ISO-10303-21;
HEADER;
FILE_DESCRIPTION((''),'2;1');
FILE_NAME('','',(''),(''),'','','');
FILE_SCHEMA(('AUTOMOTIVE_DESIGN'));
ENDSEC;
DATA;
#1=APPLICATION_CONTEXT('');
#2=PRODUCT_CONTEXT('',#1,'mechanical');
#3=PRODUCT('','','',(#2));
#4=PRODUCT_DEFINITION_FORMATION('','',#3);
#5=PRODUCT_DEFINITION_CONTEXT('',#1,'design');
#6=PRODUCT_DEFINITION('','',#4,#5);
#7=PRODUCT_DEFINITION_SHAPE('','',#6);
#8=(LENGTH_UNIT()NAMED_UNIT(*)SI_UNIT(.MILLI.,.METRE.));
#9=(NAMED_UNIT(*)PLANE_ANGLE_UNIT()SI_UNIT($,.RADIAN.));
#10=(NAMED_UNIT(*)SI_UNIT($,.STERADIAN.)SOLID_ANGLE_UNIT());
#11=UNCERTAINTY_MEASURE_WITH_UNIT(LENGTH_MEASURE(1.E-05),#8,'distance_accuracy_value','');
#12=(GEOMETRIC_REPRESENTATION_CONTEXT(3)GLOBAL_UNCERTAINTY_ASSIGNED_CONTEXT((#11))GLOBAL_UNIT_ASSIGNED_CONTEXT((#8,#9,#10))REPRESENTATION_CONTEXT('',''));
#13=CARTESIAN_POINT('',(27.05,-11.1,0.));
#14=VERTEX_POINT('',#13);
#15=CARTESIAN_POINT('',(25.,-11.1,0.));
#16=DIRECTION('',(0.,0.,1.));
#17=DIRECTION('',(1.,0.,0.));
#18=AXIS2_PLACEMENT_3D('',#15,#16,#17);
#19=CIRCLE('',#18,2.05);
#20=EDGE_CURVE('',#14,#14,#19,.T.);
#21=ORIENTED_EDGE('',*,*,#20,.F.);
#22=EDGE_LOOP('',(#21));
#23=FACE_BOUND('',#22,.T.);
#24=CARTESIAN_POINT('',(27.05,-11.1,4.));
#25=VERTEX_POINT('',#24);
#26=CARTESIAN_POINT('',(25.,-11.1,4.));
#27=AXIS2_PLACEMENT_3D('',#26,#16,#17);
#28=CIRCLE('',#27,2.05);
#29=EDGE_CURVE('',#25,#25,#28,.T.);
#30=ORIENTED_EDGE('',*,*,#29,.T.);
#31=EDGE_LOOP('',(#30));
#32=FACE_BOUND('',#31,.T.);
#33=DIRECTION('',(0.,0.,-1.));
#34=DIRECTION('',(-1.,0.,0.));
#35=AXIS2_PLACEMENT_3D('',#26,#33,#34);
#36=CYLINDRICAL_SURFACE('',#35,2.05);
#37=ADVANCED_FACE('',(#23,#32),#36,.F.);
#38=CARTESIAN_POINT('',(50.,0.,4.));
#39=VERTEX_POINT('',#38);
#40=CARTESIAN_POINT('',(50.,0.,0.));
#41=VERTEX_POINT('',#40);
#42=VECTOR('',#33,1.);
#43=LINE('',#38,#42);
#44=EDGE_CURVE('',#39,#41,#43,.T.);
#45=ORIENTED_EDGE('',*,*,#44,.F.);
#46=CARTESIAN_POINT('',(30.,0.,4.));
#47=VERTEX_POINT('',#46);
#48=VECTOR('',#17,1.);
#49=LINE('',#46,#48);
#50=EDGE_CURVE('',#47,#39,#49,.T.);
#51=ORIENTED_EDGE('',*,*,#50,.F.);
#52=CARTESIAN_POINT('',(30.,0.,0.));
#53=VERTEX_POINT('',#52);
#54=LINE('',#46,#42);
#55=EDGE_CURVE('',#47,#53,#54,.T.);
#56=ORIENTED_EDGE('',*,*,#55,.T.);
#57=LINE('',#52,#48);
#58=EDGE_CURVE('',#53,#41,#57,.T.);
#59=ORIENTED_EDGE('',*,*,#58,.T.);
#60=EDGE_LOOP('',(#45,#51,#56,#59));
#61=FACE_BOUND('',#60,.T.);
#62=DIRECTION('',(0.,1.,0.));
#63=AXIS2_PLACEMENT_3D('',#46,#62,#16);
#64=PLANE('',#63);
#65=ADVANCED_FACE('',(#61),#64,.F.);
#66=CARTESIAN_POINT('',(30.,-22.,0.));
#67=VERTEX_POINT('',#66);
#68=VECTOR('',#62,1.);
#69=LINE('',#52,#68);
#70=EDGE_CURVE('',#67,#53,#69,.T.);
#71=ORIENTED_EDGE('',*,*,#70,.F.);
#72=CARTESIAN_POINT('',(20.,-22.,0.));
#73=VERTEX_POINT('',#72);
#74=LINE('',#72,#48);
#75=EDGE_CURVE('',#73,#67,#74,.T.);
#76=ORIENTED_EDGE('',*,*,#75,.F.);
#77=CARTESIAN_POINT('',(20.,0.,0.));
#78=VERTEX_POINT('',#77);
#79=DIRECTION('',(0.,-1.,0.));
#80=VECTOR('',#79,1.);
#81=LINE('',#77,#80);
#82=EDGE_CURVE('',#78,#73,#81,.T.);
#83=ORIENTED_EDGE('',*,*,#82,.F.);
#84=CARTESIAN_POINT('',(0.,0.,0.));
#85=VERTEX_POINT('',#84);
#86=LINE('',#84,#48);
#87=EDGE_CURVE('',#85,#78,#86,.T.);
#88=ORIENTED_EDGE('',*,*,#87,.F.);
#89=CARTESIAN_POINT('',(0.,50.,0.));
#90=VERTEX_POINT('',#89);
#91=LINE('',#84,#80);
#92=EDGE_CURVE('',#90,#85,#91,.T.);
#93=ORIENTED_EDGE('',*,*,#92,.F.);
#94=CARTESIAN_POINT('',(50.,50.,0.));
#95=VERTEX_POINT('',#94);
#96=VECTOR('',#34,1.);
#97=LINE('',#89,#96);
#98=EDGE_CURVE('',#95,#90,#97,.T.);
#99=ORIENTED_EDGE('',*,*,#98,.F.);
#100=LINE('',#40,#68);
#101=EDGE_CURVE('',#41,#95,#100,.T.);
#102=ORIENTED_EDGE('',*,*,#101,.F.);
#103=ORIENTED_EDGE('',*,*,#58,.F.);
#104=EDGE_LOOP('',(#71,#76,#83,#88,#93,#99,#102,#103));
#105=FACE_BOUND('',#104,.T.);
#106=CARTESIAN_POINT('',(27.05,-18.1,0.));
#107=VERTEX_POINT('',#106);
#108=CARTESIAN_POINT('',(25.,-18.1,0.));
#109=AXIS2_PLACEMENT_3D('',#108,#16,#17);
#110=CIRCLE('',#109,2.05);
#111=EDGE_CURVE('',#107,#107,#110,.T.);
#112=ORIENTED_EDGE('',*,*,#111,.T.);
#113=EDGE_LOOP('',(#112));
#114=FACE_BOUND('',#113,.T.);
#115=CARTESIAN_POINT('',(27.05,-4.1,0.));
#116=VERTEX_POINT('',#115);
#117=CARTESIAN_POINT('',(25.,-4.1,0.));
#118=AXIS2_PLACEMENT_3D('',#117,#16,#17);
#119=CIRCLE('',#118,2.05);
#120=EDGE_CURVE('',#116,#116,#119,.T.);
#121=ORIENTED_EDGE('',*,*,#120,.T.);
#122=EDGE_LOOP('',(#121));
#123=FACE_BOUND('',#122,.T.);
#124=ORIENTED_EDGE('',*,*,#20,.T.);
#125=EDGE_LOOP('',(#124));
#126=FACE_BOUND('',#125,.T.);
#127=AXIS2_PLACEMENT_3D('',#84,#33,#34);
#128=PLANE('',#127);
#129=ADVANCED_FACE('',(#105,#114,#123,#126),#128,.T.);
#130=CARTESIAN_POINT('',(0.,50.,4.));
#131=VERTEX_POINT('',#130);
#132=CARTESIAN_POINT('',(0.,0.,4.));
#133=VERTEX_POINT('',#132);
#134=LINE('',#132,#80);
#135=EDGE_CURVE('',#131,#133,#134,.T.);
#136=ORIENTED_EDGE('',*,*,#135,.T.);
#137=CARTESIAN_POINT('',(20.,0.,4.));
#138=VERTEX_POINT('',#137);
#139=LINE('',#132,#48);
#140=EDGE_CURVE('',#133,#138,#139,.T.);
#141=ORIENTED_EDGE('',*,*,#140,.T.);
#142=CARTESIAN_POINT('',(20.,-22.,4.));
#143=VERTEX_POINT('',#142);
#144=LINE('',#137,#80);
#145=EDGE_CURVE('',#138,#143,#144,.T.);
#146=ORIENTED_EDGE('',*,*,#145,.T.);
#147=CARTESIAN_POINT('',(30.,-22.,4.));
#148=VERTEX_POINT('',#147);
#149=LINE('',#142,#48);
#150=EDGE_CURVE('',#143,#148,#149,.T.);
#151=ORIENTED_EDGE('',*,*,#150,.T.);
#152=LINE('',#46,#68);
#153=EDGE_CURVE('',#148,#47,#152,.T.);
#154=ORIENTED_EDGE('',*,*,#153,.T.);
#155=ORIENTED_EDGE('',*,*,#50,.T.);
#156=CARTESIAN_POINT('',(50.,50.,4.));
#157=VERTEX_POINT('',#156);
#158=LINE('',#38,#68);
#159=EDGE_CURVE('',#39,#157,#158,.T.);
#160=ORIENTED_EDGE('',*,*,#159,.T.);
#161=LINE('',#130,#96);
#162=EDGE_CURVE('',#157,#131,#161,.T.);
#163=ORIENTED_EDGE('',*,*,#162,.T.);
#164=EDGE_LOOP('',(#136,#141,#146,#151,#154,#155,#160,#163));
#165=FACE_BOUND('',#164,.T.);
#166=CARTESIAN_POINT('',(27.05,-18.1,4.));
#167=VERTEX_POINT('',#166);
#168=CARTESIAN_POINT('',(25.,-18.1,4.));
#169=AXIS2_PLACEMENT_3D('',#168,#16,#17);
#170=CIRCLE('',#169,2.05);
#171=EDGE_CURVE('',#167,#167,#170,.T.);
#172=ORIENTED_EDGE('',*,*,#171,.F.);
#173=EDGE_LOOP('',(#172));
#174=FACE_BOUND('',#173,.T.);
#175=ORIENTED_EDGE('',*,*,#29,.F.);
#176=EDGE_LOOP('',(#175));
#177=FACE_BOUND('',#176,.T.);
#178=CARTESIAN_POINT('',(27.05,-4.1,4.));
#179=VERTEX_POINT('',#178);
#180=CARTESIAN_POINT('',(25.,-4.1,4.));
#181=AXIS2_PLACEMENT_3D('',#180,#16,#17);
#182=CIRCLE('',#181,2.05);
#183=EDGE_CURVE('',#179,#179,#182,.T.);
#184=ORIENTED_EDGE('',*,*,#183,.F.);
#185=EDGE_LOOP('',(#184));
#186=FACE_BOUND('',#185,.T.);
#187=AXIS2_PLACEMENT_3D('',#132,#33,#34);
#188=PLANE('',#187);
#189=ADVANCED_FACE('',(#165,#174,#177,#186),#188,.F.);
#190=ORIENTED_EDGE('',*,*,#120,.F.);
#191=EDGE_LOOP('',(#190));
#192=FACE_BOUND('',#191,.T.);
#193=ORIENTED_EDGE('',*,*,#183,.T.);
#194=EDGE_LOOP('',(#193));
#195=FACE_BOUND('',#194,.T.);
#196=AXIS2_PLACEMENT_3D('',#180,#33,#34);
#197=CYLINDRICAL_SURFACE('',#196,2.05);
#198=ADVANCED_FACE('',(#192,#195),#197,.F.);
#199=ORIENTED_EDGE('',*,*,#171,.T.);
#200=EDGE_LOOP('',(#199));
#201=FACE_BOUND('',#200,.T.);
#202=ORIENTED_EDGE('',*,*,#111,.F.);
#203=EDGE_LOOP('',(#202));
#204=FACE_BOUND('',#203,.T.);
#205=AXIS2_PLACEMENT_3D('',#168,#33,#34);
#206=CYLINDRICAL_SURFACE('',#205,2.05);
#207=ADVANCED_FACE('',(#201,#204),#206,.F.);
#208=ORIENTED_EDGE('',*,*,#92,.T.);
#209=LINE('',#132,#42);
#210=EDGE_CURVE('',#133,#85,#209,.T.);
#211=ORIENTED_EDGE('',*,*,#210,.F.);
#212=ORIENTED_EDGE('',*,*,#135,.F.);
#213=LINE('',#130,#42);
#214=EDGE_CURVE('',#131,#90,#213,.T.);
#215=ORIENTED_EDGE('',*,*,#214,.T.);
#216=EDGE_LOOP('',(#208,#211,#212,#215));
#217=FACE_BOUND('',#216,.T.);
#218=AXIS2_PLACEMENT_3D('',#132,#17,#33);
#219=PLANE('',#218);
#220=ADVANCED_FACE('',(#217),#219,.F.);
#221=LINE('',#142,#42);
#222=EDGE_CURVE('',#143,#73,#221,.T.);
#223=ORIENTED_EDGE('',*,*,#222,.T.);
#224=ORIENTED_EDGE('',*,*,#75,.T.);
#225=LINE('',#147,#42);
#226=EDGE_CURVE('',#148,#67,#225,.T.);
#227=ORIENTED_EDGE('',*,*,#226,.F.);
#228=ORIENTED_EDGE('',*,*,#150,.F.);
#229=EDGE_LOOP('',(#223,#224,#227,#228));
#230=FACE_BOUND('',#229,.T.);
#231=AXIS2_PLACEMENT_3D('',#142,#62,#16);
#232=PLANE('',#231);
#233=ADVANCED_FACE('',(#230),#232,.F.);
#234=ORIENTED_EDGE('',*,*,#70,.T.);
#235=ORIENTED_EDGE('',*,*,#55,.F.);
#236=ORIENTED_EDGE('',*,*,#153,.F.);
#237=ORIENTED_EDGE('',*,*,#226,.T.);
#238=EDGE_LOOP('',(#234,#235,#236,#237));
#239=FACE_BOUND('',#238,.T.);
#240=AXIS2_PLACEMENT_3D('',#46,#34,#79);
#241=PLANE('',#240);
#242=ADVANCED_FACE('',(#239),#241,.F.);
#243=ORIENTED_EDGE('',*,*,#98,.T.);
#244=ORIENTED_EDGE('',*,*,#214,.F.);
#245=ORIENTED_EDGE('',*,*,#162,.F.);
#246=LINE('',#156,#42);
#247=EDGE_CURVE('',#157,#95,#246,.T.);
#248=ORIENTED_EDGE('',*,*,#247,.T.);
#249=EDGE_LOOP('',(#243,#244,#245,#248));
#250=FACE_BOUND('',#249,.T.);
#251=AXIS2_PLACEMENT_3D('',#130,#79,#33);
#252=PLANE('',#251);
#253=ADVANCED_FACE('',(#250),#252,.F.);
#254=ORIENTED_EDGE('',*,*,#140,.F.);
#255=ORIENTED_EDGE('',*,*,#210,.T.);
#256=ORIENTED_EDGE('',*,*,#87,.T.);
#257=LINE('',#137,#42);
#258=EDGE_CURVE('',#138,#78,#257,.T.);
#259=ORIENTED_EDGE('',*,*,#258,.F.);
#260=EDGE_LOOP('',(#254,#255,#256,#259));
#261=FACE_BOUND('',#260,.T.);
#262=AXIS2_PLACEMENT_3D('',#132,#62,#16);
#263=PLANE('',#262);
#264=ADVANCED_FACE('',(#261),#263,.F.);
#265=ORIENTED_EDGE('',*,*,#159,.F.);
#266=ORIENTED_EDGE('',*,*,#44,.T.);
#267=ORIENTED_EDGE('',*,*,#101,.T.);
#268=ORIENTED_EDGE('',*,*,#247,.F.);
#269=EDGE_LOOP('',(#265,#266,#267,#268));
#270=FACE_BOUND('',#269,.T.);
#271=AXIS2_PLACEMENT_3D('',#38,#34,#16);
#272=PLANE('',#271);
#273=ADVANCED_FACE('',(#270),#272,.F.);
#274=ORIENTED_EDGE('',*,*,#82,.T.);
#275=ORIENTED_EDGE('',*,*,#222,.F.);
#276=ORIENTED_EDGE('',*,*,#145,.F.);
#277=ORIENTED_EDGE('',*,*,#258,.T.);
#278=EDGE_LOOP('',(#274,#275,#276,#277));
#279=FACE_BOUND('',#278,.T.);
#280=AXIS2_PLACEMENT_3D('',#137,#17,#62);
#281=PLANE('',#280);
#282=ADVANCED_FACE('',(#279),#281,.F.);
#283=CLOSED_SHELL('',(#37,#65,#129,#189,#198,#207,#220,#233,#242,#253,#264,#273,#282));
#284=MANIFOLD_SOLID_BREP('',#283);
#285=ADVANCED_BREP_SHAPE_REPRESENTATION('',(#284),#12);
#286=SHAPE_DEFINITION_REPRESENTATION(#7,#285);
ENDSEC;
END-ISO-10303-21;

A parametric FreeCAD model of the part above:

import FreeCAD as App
import Part
import Sketcher
from FreeCAD import Vector

doc = App.newDocument("Part")
body = doc.addObject("PartDesign::Body", "Body")

# Sketch on XY plane
sketch1 = doc.addObject("Sketcher::SketchObject", "Sketch")
body.addObject(sketch1)
sketch1.AttachmentSupport = (doc.XY_Plane, [""])
sketch1.MapMode = "FlatFace"
sketch1.addGeometry([
    Part.LineSegment(Vector(0, 0, 0), Vector(20, 0, 0)),  # 0
    Part.LineSegment(Vector(20, 0, 0), Vector(20, -22, 0)),  # 1
    Part.LineSegment(Vector(20, -22, 0), Vector(30, -22, 0)),  # 2
    Part.LineSegment(Vector(30, -22, 0), Vector(30, 0, 0)),  # 3
    Part.LineSegment(Vector(30, 0, 0), Vector(50, 0, 0)),  # 4
    Part.LineSegment(Vector(50, 0, 0), Vector(50, 50, 0)),  # 5
    Part.LineSegment(Vector(50, 50, 0), Vector(0, 50, 0)),  # 6
    Part.LineSegment(Vector(0, 50, 0), Vector(0, 0, 0)),  # 7
    Part.Circle(Vector(25, -18.1, 0), Vector(0, 0, 1), 2),  # 8
    Part.Circle(Vector(25, -11.1, 0), Vector(0, 0, 1), 2),  # 9
    Part.Circle(Vector(25, -4.1, 0), Vector(0, 0, 1), 2),  # 10
], False)
sketch1.addConstraint([
    Sketcher.Constraint("Coincident", 0, 2, 1, 1),
    Sketcher.Constraint("Coincident", 1, 2, 2, 1),
    Sketcher.Constraint("Coincident", 2, 2, 3, 1),
    Sketcher.Constraint("Coincident", 3, 2, 4, 1),
    Sketcher.Constraint("Coincident", 4, 2, 5, 1),
    Sketcher.Constraint("Coincident", 5, 2, 6, 1),
    Sketcher.Constraint("Coincident", 6, 2, 7, 1),
    Sketcher.Constraint("Coincident", 7, 2, 0, 1),
    Sketcher.Constraint("Horizontal", 0),
    Sketcher.Constraint("Vertical", 1),
    Sketcher.Constraint("Horizontal", 2),
    Sketcher.Constraint("Vertical", 3),
    Sketcher.Constraint("Horizontal", 4),
    Sketcher.Constraint("Vertical", 5),
    Sketcher.Constraint("Horizontal", 6),
    Sketcher.Constraint("Vertical", 7),
    Sketcher.Constraint("Coincident", 7, 2, -1, 1),
    Sketcher.Constraint("Equal", 8, 9),
    Sketcher.Constraint("Equal", 9, 10),
    Sketcher.Constraint("PointOnObject", 3, 2, -1),
    Sketcher.Constraint("Vertical", 8, 3, 9, 3),
    Sketcher.Constraint("Vertical", 9, 3, 10, 3),
    Sketcher.Constraint("Equal", 0, 4),
    Sketcher.Constraint("Equal", 6, 5),
    Sketcher.Constraint("Diameter", 8, 4.1),
    Sketcher.Constraint("DistanceX", 0, 1, 0, 2, 20.0),
    Sketcher.Constraint("DistanceX", 2, 1, 2, 2, 10.0),
    Sketcher.Constraint("DistanceY", 1, 2, 1, 1, 22.0),
    Sketcher.Constraint("DistanceX", -1, 1, 8, 3, 25.0),
    Sketcher.Constraint("DistanceY", 8, 3, 9, 3, 7.0),
    Sketcher.Constraint("DistanceY", 9, 3, 10, 3, 7.0),
    Sketcher.Constraint("DistanceY", 8, 3, -1, 1, 18.1),
])
pad1 = doc.addObject("PartDesign::Pad", "Pad")
body.addObject(pad1)
pad1.Profile = sketch1
pad1.Length = 4

doc.recompute()
